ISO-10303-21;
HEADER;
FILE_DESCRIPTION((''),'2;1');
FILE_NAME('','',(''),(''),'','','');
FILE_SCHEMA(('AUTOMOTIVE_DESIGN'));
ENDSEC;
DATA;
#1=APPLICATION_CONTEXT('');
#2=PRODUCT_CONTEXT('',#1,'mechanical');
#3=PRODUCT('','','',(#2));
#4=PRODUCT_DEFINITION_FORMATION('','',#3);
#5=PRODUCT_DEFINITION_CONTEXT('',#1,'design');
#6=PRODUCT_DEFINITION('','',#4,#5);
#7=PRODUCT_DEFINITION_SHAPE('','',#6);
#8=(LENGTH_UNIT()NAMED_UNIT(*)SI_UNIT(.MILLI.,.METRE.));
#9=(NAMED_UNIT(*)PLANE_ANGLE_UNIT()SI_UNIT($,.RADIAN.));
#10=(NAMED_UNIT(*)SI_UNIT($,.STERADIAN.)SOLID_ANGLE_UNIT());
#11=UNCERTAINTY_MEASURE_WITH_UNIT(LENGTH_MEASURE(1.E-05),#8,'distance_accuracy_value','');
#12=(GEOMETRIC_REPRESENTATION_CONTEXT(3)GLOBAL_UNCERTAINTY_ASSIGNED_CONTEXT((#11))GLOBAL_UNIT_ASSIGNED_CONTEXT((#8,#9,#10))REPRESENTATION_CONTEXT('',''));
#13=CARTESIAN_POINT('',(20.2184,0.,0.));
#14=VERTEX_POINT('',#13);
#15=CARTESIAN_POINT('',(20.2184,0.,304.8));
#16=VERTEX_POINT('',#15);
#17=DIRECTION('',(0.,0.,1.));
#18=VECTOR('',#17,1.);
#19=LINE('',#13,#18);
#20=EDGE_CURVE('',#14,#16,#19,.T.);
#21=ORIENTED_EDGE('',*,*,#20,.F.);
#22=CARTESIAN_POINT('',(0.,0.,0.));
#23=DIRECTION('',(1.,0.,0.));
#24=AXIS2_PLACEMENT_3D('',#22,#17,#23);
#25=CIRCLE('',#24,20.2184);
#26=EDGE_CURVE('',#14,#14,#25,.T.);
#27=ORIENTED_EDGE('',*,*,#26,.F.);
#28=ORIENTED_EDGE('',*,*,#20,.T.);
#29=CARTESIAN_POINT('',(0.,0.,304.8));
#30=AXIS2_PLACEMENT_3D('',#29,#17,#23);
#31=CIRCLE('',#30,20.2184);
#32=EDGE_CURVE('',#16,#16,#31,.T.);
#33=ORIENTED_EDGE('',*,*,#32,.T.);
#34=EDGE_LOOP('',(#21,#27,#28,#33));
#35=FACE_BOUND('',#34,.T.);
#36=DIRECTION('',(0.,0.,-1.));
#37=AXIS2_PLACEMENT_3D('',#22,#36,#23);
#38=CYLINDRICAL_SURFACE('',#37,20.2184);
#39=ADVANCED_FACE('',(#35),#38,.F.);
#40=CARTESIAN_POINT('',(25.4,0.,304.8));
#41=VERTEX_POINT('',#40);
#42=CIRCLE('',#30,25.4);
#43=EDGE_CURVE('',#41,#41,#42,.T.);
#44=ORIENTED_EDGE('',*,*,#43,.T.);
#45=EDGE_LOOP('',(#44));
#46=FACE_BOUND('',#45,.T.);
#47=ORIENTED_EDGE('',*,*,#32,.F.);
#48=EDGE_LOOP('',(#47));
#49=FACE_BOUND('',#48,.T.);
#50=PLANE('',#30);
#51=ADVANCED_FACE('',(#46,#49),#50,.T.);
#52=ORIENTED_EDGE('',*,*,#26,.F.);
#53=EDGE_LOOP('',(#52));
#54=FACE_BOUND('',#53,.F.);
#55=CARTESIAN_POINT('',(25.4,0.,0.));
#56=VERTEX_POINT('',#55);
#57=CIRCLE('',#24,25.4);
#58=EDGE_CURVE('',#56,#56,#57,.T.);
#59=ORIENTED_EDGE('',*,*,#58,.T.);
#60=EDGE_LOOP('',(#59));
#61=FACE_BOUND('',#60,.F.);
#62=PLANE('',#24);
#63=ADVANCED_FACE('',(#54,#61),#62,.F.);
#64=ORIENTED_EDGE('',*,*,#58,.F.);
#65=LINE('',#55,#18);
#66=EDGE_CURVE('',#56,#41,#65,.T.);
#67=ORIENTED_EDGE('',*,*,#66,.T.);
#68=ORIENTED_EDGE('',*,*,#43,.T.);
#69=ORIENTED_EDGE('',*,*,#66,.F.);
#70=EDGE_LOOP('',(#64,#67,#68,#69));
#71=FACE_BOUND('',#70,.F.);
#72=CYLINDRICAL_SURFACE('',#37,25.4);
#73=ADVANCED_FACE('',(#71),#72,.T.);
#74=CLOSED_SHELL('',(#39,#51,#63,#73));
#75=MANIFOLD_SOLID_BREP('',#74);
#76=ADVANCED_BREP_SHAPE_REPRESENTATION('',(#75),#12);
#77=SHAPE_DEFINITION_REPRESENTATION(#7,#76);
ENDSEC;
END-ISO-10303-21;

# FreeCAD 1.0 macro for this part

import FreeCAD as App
import Part
import Sketcher

V = App.Vector
Q = App.Units.Quantity

doc = App.newDocument("Part")
params = doc.addObject("Spreadsheet::Sheet", "Params")
for row, (alias, value) in enumerate([
    ("sketch1_diameter", "2 in"),
    ("sketch1_diameter2", "1.592 in"),
    ("pad1_length", "12 in"),
], start=1):
    params.set(f"A{row}", alias)
    params.set(f"B{row}", "=" + value)
    params.setAlias(f"B{row}", alias)

body = doc.addObject("PartDesign::Body", "Body")

sketch1 = doc.addObject("Sketcher::SketchObject", "Sketch")
body.addObject(sketch1)
sketch1.AttachmentSupport = (doc.XY_Plane, [""])
sketch1.MapMode = "FlatFace"
sketch1.addGeometry([
    Part.Circle(V(0, 0, 0), V(0, 0, 1), 25),
    Part.Circle(V(0, 0, 0), V(0, 0, 1), 20),
], False)
sketch1.addConstraint([
    Sketcher.Constraint("Coincident", 0, 3, -1, 1),
    Sketcher.Constraint("Coincident", 1, 3, -1, 1),
    Sketcher.Constraint("Diameter", 0, Q("2 in")),
    Sketcher.Constraint("Diameter", 1, Q("1.592 in")),
])
sketch1.setExpression("Constraints[2]", "Params.sketch1_diameter")
sketch1.setExpression("Constraints[3]", "Params.sketch1_diameter2")
pad1 = doc.addObject("PartDesign::Pad", "Pad")
body.addObject(pad1)
pad1.Profile = sketch1
pad1.setExpression("Length", "Params.pad1_length")

doc.recompute()
